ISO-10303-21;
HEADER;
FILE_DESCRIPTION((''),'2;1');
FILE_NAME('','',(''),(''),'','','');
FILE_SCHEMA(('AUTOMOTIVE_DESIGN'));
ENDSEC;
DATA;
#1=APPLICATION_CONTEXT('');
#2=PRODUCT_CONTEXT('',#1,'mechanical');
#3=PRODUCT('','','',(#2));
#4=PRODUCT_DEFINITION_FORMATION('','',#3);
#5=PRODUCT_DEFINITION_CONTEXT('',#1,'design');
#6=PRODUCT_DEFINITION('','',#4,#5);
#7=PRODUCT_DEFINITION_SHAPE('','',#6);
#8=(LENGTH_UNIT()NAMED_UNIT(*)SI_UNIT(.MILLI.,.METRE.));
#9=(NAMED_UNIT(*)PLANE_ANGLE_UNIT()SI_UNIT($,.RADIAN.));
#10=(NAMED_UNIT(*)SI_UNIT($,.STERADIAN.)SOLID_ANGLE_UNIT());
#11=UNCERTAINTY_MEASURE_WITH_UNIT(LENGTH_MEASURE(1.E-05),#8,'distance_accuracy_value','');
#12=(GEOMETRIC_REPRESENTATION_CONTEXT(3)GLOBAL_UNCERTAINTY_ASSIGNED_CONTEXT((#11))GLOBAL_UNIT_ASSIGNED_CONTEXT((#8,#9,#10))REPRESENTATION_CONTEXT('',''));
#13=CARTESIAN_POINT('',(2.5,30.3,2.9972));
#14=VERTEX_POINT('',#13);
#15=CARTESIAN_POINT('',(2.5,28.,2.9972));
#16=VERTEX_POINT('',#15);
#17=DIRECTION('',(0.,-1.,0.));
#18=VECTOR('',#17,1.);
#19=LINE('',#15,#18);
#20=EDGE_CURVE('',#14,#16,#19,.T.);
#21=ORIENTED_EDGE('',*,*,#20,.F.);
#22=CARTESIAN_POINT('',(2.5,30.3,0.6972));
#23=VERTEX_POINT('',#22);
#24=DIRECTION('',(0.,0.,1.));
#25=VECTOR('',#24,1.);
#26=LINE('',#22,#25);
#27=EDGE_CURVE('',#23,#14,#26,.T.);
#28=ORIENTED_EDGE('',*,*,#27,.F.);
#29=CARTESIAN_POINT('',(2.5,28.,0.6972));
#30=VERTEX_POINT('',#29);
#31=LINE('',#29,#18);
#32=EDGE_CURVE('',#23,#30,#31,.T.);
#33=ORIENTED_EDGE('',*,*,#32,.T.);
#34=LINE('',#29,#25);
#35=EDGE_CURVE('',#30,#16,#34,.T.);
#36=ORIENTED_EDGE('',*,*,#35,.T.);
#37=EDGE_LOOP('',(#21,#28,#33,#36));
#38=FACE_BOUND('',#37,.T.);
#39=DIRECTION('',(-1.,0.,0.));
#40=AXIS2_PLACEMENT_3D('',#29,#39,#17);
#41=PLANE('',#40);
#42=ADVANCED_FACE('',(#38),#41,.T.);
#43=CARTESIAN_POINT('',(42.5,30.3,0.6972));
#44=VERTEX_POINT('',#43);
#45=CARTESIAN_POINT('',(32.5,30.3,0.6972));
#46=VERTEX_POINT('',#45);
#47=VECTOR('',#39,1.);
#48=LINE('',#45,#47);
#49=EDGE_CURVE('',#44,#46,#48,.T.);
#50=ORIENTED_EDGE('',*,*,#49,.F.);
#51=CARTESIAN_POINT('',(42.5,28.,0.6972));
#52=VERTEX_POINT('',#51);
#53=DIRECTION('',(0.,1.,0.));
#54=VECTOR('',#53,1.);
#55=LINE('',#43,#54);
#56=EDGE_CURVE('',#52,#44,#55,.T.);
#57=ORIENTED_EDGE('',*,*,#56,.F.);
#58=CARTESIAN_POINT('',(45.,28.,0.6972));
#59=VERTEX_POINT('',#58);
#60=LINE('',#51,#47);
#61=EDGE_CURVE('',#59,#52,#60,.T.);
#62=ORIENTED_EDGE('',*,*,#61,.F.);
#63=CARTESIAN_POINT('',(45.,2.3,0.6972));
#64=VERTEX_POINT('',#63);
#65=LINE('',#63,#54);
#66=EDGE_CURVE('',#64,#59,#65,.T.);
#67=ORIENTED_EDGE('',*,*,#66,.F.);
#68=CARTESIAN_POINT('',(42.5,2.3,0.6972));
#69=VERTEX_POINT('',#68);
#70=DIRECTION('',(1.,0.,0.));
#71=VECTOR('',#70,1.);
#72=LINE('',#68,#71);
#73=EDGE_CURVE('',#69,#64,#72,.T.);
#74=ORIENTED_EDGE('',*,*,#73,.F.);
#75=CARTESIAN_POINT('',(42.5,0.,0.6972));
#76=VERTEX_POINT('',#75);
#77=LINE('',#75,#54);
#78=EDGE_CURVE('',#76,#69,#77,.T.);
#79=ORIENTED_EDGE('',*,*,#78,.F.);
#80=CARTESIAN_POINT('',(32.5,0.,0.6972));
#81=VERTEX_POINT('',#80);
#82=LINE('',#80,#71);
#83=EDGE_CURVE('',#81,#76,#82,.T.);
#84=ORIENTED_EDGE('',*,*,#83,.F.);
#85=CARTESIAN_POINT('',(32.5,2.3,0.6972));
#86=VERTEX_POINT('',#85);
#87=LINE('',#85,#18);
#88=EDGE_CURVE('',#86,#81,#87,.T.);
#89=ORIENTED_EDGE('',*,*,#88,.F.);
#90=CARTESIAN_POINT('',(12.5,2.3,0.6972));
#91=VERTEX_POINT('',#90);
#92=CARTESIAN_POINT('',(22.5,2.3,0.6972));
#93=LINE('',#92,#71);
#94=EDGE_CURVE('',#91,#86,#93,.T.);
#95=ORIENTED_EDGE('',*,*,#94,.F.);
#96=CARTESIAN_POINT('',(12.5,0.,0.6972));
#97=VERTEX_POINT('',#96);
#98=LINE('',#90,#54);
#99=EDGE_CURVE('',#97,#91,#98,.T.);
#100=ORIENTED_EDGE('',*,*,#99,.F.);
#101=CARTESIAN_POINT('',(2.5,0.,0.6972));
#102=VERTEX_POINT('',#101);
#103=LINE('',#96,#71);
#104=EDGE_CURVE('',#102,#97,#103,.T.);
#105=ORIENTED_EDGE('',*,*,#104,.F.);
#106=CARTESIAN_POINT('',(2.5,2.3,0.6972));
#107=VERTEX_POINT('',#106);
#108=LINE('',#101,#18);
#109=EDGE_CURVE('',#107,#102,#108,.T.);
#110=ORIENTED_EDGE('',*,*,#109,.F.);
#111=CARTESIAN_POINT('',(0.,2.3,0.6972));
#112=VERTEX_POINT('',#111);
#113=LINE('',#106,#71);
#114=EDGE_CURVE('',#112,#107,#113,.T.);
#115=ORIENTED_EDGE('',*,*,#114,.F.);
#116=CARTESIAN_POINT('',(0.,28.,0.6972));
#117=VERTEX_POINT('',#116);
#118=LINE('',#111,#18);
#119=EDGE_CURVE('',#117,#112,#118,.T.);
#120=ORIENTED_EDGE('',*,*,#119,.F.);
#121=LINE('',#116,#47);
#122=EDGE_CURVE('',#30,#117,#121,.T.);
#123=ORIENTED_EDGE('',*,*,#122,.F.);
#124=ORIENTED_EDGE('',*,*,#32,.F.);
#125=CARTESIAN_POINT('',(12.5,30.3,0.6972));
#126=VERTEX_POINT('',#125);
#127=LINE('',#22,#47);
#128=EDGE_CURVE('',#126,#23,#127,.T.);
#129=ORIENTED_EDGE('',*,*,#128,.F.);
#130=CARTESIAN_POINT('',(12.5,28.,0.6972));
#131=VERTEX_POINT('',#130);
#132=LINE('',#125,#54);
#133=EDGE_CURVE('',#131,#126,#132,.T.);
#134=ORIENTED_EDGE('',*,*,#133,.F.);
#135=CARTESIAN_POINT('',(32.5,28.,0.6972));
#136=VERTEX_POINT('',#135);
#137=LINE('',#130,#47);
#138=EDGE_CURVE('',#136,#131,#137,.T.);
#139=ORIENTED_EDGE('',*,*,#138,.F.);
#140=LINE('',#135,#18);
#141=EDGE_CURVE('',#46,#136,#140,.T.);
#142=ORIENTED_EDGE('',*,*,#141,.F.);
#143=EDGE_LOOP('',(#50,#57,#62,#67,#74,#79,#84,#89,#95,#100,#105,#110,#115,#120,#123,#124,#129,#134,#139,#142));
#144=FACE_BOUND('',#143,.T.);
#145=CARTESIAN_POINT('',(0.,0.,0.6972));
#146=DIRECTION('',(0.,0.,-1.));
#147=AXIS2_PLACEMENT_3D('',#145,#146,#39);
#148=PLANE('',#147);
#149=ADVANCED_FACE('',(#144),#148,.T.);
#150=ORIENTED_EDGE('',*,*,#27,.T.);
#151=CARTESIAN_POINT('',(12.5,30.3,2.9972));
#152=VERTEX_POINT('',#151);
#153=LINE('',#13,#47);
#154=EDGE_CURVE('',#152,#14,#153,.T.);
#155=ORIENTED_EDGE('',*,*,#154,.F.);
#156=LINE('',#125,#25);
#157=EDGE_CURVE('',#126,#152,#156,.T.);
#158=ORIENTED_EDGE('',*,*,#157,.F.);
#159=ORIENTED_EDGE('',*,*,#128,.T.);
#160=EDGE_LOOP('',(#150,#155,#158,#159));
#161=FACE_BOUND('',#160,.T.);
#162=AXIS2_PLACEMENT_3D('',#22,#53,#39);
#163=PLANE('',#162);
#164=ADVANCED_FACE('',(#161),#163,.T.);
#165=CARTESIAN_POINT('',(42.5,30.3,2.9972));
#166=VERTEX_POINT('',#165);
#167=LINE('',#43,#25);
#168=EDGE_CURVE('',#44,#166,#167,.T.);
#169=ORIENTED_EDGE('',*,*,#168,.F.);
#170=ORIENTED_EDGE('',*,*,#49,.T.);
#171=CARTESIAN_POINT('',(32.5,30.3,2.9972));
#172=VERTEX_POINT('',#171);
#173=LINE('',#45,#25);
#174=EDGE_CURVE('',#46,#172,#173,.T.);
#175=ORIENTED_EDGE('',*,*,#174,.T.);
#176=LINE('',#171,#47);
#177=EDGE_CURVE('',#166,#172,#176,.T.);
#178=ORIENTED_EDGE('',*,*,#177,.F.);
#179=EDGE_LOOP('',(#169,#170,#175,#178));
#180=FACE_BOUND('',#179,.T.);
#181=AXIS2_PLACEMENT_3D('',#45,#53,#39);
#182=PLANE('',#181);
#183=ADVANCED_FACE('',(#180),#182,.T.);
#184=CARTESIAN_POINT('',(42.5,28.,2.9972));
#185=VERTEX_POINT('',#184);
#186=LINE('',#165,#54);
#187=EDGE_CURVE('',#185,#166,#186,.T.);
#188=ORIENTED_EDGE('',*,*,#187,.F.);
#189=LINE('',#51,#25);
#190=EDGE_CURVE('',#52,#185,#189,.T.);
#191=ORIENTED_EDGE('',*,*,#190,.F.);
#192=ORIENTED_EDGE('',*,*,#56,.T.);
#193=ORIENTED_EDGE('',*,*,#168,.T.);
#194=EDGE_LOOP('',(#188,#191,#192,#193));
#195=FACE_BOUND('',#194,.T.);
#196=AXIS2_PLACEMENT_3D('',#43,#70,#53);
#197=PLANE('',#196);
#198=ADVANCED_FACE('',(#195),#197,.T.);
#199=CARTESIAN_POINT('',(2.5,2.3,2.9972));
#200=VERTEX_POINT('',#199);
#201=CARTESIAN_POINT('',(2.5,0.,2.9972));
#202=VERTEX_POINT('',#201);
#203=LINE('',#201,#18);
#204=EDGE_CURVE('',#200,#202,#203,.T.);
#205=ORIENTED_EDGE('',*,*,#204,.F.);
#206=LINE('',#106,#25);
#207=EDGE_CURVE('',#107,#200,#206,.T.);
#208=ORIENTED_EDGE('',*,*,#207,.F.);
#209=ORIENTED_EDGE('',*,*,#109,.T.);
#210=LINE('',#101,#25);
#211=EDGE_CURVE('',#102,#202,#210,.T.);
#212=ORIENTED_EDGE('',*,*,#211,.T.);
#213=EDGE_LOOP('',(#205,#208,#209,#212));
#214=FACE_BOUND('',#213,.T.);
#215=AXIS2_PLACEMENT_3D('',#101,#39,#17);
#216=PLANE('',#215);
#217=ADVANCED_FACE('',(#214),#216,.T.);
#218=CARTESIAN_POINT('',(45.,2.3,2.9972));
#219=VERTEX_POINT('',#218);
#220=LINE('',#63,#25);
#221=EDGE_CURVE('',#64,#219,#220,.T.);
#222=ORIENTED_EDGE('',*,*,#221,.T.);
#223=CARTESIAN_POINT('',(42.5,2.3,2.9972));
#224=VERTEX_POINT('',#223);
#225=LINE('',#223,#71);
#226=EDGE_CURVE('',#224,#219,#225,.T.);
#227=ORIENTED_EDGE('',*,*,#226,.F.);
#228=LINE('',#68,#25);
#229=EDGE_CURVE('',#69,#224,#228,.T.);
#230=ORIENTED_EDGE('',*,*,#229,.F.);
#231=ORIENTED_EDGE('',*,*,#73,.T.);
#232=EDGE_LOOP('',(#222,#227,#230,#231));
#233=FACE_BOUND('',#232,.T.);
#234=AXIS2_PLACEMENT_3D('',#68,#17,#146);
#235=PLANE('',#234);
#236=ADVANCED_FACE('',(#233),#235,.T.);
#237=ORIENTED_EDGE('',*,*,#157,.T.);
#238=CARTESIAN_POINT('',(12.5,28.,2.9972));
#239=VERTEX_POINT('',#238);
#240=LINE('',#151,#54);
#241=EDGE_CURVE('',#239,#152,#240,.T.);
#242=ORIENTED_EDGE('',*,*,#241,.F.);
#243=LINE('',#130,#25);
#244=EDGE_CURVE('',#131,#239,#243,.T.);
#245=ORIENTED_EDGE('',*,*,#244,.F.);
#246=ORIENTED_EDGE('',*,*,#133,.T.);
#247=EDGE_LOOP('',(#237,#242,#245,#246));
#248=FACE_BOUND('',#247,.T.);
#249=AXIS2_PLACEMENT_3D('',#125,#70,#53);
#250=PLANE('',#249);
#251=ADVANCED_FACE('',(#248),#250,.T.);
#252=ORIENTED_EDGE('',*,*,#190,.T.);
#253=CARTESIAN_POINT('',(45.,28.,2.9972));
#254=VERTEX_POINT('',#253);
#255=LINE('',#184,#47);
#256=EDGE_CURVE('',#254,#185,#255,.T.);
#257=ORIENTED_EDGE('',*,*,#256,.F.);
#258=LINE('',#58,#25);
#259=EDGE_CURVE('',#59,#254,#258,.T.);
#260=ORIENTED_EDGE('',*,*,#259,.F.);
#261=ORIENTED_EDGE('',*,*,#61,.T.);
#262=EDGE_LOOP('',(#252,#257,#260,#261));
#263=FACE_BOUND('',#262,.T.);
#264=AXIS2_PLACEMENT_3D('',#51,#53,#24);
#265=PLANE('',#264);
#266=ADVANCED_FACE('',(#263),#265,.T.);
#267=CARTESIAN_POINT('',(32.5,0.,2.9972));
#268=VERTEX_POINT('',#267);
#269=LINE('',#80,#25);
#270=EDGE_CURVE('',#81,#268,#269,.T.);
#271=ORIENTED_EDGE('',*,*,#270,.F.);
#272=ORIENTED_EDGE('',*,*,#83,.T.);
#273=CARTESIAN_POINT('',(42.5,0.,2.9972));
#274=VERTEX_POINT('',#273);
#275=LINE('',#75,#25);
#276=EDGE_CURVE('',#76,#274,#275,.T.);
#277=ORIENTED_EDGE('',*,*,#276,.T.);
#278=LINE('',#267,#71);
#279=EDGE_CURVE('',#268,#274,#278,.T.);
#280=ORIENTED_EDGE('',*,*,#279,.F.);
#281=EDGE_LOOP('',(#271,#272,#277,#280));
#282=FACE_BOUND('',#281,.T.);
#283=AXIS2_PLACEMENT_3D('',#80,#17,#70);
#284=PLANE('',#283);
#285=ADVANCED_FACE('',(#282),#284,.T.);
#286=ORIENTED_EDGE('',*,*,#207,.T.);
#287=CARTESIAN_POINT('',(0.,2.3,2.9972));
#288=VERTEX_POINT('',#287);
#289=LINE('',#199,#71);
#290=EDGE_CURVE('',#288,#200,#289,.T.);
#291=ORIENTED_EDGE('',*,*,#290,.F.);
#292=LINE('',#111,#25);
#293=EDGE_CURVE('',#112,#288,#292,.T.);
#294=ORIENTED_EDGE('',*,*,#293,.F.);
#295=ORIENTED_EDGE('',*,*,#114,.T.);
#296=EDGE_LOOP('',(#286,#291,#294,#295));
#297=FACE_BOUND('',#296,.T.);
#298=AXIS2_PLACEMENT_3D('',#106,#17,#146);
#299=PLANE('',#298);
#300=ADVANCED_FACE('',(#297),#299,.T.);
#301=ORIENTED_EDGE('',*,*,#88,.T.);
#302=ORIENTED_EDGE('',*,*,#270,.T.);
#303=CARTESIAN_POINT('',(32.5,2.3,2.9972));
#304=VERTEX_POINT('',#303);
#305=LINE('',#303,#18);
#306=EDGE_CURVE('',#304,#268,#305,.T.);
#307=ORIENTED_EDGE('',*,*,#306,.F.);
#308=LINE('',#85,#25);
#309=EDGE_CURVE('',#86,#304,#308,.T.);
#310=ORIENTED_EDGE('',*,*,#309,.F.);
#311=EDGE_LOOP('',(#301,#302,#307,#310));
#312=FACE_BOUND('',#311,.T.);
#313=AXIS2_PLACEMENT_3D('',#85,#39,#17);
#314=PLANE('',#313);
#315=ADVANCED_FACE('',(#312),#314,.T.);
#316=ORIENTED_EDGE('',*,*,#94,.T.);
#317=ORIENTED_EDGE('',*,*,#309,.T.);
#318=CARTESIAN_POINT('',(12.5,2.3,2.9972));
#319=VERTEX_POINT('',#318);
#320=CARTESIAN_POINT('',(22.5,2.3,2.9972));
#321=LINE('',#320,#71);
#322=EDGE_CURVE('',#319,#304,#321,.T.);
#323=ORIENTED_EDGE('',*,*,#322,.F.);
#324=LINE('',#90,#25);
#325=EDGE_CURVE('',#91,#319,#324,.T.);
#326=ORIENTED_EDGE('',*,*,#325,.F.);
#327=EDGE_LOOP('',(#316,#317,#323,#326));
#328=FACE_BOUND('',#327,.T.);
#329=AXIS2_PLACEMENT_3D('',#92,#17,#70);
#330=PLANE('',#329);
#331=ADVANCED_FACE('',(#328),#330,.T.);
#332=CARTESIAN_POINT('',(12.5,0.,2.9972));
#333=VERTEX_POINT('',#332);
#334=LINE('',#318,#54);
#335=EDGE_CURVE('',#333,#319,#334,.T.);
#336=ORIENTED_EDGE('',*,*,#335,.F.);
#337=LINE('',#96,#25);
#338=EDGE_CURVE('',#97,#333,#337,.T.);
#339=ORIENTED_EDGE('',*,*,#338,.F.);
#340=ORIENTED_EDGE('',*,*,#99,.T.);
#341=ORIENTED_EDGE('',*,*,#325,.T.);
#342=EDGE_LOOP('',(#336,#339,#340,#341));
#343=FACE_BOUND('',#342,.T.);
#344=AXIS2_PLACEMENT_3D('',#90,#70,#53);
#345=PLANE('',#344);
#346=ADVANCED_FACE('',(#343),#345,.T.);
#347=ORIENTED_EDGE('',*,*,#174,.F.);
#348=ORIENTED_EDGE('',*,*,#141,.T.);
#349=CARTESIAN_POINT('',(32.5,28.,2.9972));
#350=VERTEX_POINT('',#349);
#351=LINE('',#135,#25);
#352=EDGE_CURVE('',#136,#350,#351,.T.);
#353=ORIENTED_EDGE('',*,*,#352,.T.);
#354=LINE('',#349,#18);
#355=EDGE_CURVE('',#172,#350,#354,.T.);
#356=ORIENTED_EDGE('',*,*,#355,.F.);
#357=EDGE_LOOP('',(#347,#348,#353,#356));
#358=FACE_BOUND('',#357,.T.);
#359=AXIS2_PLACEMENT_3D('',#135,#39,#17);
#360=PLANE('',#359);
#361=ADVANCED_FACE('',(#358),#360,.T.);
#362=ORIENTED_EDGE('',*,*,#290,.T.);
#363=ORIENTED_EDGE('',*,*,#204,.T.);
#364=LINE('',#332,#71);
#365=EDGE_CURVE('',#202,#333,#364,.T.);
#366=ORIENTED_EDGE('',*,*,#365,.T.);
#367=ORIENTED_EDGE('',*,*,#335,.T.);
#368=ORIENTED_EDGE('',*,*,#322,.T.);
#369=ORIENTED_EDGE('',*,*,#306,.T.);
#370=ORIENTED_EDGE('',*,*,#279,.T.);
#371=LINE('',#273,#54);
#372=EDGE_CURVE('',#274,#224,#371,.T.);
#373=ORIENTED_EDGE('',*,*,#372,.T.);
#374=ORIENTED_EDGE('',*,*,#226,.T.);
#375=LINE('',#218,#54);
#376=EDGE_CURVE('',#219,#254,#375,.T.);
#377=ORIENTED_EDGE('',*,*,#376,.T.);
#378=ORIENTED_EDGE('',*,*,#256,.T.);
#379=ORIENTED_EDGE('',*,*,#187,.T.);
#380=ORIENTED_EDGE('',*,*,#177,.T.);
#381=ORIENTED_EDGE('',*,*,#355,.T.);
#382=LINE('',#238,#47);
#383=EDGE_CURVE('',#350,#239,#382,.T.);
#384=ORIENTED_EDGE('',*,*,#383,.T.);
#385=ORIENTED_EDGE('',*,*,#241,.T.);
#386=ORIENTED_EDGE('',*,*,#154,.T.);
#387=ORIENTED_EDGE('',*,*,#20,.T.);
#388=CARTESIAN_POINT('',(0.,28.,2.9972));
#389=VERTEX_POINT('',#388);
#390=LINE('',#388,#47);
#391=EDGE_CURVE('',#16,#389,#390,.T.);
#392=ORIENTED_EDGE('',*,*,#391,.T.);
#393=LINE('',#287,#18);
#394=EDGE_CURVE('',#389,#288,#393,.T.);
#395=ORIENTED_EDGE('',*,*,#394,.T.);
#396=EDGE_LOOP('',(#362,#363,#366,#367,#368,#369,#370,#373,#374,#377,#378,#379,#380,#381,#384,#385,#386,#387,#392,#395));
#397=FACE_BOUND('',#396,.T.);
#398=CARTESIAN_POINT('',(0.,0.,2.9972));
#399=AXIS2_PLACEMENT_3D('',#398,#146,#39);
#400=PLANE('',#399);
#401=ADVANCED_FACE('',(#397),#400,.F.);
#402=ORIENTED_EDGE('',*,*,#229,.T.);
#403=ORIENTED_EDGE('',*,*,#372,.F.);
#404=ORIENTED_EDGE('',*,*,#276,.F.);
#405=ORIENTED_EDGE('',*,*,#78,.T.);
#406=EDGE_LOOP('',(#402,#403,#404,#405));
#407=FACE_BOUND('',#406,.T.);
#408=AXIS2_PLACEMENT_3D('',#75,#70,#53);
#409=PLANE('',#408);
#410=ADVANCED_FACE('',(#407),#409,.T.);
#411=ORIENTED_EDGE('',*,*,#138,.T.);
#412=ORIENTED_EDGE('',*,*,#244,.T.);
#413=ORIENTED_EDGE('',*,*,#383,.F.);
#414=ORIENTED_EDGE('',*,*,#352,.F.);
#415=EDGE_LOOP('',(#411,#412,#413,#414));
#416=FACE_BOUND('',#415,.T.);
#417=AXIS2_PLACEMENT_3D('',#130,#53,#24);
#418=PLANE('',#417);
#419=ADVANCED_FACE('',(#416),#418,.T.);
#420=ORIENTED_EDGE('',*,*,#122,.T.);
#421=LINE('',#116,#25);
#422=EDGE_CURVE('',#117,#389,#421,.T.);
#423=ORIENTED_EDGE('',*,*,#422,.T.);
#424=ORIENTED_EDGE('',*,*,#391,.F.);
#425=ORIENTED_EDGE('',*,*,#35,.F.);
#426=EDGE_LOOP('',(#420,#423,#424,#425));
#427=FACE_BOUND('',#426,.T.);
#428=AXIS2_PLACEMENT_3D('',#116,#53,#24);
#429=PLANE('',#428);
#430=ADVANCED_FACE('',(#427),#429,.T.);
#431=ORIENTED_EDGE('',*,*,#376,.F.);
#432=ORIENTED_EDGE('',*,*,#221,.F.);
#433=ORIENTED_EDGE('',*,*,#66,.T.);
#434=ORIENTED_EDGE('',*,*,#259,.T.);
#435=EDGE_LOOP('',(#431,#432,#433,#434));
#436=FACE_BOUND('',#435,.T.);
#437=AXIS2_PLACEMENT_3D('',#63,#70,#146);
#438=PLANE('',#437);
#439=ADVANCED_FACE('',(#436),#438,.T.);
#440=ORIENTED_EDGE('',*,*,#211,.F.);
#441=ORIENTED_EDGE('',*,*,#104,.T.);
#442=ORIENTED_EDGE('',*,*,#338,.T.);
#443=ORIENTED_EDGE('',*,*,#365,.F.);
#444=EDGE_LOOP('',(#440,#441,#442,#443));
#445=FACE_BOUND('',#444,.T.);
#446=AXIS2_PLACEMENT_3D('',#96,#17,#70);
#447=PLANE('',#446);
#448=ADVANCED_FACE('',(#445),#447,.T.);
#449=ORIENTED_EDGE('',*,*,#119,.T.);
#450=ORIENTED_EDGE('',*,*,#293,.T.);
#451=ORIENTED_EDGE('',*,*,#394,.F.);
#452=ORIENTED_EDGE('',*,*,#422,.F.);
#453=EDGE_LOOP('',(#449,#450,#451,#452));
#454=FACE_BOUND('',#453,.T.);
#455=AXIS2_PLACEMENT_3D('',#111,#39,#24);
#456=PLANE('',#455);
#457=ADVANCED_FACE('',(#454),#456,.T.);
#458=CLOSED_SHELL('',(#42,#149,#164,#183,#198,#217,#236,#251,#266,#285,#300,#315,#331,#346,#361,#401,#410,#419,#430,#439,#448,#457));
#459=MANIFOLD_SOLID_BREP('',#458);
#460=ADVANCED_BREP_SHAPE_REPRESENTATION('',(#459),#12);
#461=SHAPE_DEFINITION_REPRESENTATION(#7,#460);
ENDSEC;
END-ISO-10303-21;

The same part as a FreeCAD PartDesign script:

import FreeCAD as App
import Part
import Sketcher
from FreeCAD import Vector
Q = App.Units.Quantity

doc = App.newDocument("Part")
params = doc.addObject("Spreadsheet::Sheet", "Params")
for row, (alias, value) in enumerate([
    ("sketch1_width", "10 mm"),
    ("sketch1_width2", "20 mm"),
    ("sketch1_width3", "2.5 mm"),
    ("sketch1_height", "25.7 mm"),
    ("sketch1_height2", "2.3 mm"),
    ("pad1_length", "2.3 mm"),
], start=1):
    params.set(f"A{row}", alias)
    params.set(f"B{row}", "=" + value)
    params.setAlias(f"B{row}", alias)

body = doc.addObject("PartDesign::Body", "Body")

# Sketch on XY plane
sketch1 = body.newObject("Sketcher::SketchObject", "Sketch")
sketch1.AttachmentSupport = (doc.getObject("XY_Plane"), [""])
sketch1.MapMode = "FlatFace"
sketch1.AttachmentOffset = App.Placement(Vector(0, 0, 2.9972), App.Rotation())
sketch1.addGeometry([
    Part.LineSegment(Vector(0, 28, 0), Vector(0, 2.3, 0)),  # 0
    Part.LineSegment(Vector(0, 2.3, 0), Vector(2.5, 2.3, 0)),  # 1
    Part.LineSegment(Vector(2.5, 2.3, 0), Vector(2.5, 0, 0)),  # 2
    Part.LineSegment(Vector(2.5, 0, 0), Vector(12.5, 0, 0)),  # 3
    Part.LineSegment(Vector(12.5, 0, 0), Vector(12.5, 2.3, 0)),  # 4
    Part.LineSegment(Vector(12.5, 2.3, 0), Vector(32.5, 2.3, 0)),  # 5
    Part.LineSegment(Vector(32.5, 2.3, 0), Vector(32.5, 0, 0)),  # 6
    Part.LineSegment(Vector(32.5, 0, 0), Vector(42.5, 0, 0)),  # 7
    Part.LineSegment(Vector(42.5, 0, 0), Vector(42.5, 2.3, 0)),  # 8
    Part.LineSegment(Vector(42.5, 2.3, 0), Vector(45, 2.3, 0)),  # 9
    Part.LineSegment(Vector(45, 2.3, 0), Vector(45, 28, 0)),  # 10
    Part.LineSegment(Vector(45, 28, 0), Vector(42.5, 28, 0)),  # 11
    Part.LineSegment(Vector(42.5, 28, 0), Vector(42.5, 30.3, 0)),  # 12
    Part.LineSegment(Vector(42.5, 30.3, 0), Vector(32.5, 30.3, 0)),  # 13
    Part.LineSegment(Vector(32.5, 30.3, 0), Vector(32.5, 28, 0)),  # 14
    Part.LineSegment(Vector(32.5, 28, 0), Vector(12.5, 28, 0)),  # 15
    Part.LineSegment(Vector(12.5, 28, 0), Vector(12.5, 30.3, 0)),  # 16
    Part.LineSegment(Vector(12.5, 30.3, 0), Vector(2.5, 30.3, 0)),  # 17
    Part.LineSegment(Vector(2.5, 30.3, 0), Vector(2.5, 28, 0)),  # 18
    Part.LineSegment(Vector(2.5, 28, 0), Vector(0, 28, 0)),  # 19
], False)
sketch1.addConstraint([
    Sketcher.Constraint("Coincident", 0, 2, 1, 1),
    Sketcher.Constraint("Coincident", 1, 2, 2, 1),
    Sketcher.Constraint("Coincident", 2, 2, 3, 1),
    Sketcher.Constraint("Coincident", 3, 2, 4, 1),
    Sketcher.Constraint("Coincident", 4, 2, 5, 1),
    Sketcher.Constraint("Coincident", 5, 2, 6, 1),
    Sketcher.Constraint("Coincident", 6, 2, 7, 1),
    Sketcher.Constraint("Coincident", 7, 2, 8, 1),
    Sketcher.Constraint("Coincident", 8, 2, 9, 1),
    Sketcher.Constraint("Coincident", 9, 2, 10, 1),
    Sketcher.Constraint("Coincident", 10, 2, 11, 1),
    Sketcher.Constraint("Coincident", 11, 2, 12, 1),
    Sketcher.Constraint("Coincident", 12, 2, 13, 1),
    Sketcher.Constraint("Coincident", 13, 2, 14, 1),
    Sketcher.Constraint("Coincident", 14, 2, 15, 1),
    Sketcher.Constraint("Coincident", 15, 2, 16, 1),
    Sketcher.Constraint("Coincident", 16, 2, 17, 1),
    Sketcher.Constraint("Coincident", 17, 2, 18, 1),
    Sketcher.Constraint("Coincident", 18, 2, 19, 1),
    Sketcher.Constraint("Coincident", 19, 2, 0, 1),
    Sketcher.Constraint("Vertical", 0),
    Sketcher.Constraint("Horizontal", 1),
    Sketcher.Constraint("Vertical", 2),
    Sketcher.Constraint("Horizontal", 3),
    Sketcher.Constraint("Vertical", 4),
    Sketcher.Constraint("Horizontal", 5),
    Sketcher.Constraint("Vertical", 6),
    Sketcher.Constraint("Horizontal", 7),
    Sketcher.Constraint("Vertical", 8),
    Sketcher.Constraint("Horizontal", 9),
    Sketcher.Constraint("Vertical", 10),
    Sketcher.Constraint("Horizontal", 11),
    Sketcher.Constraint("Vertical", 12),
    Sketcher.Constraint("Horizontal", 13),
    Sketcher.Constraint("Vertical", 14),
    Sketcher.Constraint("Horizontal", 15),
    Sketcher.Constraint("Vertical", 16),
    Sketcher.Constraint("Horizontal", 17),
    Sketcher.Constraint("Vertical", 18),
    Sketcher.Constraint("Horizontal", 19),
    Sketcher.Constraint("PointOnObject", 0, 2, -2),
    Sketcher.Constraint("PointOnObject", 2, 2, -1),
    Sketcher.Constraint("PointOnObject", 6, 2, -1),
    Sketcher.Constraint("Horizontal", 1, 2, 4, 2),
    Sketcher.Constraint("Horizontal", 5, 2, 8, 2),
    Sketcher.Constraint("Horizontal", 11, 2, 14, 2),
    Sketcher.Constraint("Horizontal", 13, 2, 16, 2),
    Sketcher.Constraint("Horizontal", 15, 2, 18, 2),
    Sketcher.Constraint("Vertical", 8, 2, 11, 2),
    Sketcher.Constraint("Vertical", 6, 2, 13, 2),
    Sketcher.Constraint("Vertical", 4, 2, 15, 2),
    Sketcher.Constraint("Vertical", 2, 2, 17, 2),
    Sketcher.Constraint("Equal", 3, 7),
    Sketcher.Constraint("Equal", 1, 9),
    Sketcher.Constraint("Equal", 8, 12),
    Sketcher.Constraint("DistanceX", 3, 1, 3, 2, Q("10 mm")),
    Sketcher.Constraint("DistanceX", 5, 1, 5, 2, Q("20 mm")),
    Sketcher.Constraint("DistanceX", 1, 1, 1, 2, Q("2.5 mm")),
    Sketcher.Constraint("DistanceY", 0, 2, 0, 1, Q("25.7 mm")),
    Sketcher.Constraint("DistanceY", 2, 2, 2, 1, Q("2.3 mm")),
])
sketch1.setExpression("Constraints[55]", "Params.sketch1_width")
sketch1.setExpression("Constraints[56]", "Params.sketch1_width2")
sketch1.setExpression("Constraints[57]", "Params.sketch1_width3")
sketch1.setExpression("Constraints[58]", "Params.sketch1_height")
sketch1.setExpression("Constraints[59]", "Params.sketch1_height2")
pad1 = body.newObject("PartDesign::Pad", "Pad")
pad1.Profile = sketch1
pad1.setExpression("Length", "Params.pad1_length")
pad1.Reversed = True

doc.recompute()
